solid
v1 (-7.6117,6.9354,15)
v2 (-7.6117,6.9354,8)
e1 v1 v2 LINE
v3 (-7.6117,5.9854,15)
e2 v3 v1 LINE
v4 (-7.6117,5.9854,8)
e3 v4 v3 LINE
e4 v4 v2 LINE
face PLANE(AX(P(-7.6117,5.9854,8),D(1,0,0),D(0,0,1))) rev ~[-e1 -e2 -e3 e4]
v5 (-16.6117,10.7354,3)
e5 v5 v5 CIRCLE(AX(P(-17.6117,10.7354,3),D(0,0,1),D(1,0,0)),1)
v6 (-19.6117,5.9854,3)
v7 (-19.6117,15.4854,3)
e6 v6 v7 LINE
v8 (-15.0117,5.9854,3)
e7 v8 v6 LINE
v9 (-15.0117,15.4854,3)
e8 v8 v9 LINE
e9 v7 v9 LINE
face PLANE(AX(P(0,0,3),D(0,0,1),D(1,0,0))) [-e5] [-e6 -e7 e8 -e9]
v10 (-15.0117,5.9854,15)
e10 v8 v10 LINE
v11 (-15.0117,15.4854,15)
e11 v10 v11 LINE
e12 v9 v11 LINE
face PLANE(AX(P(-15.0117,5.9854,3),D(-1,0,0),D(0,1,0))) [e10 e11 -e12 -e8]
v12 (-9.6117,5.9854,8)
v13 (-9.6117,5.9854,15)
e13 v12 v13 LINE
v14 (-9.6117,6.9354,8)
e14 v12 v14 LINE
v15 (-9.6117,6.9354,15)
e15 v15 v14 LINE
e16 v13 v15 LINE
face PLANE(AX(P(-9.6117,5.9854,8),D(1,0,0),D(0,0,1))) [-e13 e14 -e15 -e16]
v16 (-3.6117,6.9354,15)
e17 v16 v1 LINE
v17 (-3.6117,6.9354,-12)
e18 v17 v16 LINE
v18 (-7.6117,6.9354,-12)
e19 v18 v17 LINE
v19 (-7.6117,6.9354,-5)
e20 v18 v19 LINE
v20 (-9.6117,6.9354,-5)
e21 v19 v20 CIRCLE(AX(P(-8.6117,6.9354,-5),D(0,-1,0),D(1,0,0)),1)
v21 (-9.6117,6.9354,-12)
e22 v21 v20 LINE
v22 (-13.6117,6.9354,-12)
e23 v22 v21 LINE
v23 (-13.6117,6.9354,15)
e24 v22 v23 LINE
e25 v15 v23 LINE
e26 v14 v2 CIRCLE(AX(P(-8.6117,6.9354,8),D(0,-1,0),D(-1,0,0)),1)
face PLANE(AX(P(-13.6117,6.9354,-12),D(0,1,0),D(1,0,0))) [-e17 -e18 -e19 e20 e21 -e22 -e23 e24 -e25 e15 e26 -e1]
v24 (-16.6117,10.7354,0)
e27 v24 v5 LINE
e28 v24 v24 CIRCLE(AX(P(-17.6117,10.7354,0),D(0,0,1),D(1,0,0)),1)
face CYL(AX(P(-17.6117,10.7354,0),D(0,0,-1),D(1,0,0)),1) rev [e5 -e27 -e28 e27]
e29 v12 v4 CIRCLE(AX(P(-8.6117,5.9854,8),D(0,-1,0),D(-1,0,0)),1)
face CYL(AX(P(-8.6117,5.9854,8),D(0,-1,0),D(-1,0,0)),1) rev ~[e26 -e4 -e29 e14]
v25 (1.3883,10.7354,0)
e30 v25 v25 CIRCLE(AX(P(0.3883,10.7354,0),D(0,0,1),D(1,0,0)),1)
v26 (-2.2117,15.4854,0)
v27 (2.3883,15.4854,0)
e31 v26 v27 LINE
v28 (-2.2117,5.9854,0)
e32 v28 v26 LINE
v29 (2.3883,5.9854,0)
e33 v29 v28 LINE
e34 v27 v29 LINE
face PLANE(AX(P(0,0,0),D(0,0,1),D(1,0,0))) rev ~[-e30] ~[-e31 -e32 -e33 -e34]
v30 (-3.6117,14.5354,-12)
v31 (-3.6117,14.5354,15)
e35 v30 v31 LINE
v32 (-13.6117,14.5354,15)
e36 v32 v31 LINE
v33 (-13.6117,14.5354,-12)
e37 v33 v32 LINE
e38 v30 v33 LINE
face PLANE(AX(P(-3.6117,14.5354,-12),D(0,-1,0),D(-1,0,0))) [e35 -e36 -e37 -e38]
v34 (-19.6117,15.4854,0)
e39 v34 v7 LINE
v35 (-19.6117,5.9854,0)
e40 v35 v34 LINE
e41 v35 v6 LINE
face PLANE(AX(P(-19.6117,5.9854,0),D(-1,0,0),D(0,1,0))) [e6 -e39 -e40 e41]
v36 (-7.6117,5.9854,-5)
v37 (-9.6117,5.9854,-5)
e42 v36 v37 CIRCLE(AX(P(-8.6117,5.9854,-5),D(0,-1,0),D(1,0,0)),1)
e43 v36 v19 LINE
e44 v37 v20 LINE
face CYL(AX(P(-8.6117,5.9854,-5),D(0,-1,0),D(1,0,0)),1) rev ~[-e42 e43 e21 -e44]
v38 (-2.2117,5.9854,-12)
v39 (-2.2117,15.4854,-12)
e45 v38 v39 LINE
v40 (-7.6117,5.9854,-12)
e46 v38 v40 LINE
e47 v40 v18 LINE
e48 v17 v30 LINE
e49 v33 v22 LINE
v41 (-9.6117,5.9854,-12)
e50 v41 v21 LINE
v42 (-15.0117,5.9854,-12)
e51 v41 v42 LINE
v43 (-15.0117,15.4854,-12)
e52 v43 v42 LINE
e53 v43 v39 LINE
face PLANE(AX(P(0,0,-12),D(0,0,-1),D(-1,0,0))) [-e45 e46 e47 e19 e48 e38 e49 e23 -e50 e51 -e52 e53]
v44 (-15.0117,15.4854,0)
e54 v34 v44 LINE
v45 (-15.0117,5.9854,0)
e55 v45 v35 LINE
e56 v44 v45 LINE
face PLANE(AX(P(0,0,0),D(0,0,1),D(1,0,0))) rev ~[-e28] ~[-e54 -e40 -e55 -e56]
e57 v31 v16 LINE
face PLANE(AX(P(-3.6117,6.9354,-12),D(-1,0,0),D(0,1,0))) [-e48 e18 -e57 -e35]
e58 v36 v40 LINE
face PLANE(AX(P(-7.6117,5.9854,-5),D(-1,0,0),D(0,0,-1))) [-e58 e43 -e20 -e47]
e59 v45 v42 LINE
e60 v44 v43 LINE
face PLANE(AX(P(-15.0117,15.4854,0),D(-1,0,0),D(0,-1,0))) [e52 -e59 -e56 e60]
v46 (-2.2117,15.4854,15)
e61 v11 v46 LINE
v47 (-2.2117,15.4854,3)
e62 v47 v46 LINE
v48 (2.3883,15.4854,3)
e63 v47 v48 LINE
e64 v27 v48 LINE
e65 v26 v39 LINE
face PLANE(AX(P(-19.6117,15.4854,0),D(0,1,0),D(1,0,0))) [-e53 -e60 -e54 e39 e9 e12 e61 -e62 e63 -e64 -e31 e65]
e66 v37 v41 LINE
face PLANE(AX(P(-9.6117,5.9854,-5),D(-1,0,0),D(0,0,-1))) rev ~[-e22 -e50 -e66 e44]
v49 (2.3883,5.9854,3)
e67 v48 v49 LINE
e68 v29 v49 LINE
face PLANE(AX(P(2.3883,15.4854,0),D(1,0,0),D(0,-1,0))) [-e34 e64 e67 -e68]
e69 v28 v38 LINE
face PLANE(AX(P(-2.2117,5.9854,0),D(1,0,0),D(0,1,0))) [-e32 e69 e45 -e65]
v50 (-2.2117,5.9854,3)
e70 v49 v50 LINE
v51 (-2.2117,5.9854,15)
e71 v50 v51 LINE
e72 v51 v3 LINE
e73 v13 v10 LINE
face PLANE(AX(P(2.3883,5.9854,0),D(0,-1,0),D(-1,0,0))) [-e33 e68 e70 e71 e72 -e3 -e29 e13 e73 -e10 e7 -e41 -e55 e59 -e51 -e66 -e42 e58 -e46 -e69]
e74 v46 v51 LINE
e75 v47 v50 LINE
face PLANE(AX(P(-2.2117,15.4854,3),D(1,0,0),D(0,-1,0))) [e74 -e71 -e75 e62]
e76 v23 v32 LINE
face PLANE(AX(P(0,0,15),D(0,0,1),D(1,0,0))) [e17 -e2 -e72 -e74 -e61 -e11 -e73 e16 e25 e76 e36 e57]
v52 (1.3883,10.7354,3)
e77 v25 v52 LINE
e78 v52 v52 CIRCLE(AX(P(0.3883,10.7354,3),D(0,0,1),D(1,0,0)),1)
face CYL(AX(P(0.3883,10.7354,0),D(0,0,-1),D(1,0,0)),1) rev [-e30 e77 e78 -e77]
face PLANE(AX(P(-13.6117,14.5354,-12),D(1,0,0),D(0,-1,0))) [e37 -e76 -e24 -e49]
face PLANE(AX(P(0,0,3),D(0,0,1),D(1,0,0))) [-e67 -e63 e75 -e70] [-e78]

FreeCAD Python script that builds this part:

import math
import FreeCAD as App
import Part
import Sketcher

doc = App.newDocument("Part")
body = doc.addObject("PartDesign::Body", "Body")

sketch1 = body.newObject("Sketcher::SketchObject", "Sketch")
sketch1.AttachmentSupport = (doc.getObject("XY_Plane"), [""])
sketch1.MapMode = "FlatFace"
sketch1.addGeometry([
    Part.LineSegment(App.Vector(2.4, 15.5, 0), App.Vector(-19.6, 15.5, 0)),
    Part.LineSegment(App.Vector(-19.6, 15.5, 0), App.Vector(-19.6, 6, 0)),
    Part.LineSegment(App.Vector(-19.6, 6, 0), App.Vector(2.4, 6, 0)),
    Part.LineSegment(App.Vector(2.4, 6, 0), App.Vector(2.4, 15.5, 0)),
    Part.Circle(App.Vector(-17.6, 10.7, 0), App.Vector(0, 0, 1), 1),
    Part.Circle(App.Vector(0.4, 10.7, 0), App.Vector(0, 0, 1), 1),
], False)
sketch1.addConstraint([
    Sketcher.Constraint("Coincident", 0, 2, 1, 1),
    Sketcher.Constraint("Coincident", 1, 2, 2, 1),
    Sketcher.Constraint("Coincident", 2, 2, 3, 1),
    Sketcher.Constraint("Coincident", 3, 2, 0, 1),
    Sketcher.Constraint("Horizontal", 0),
    Sketcher.Constraint("Vertical", 1),
    Sketcher.Constraint("Horizontal", 2),
    Sketcher.Constraint("Vertical", 3),
    Sketcher.Constraint("Equal", 4, 5),
    Sketcher.Constraint("Horizontal", 4, 3, 5, 3),
    Sketcher.Constraint("Diameter", 4, 2.0),
    Sketcher.Constraint("DistanceX", 0, 2, 0, 1, 22.0),
    Sketcher.Constraint("DistanceY", 1, 2, 1, 1, 9.5),
    Sketcher.Constraint("DistanceX", 4, 3, 5, 3, 18.0),
    Sketcher.Constraint("DistanceX", 0, 2, 4, 3, 2.0),
    Sketcher.Constraint("DistanceY", 4, 3, 0, 2, 4.75),
    Sketcher.Constraint("DistanceX", 4, 3, -1, 1, 17.6117),
    Sketcher.Constraint("DistanceY", -1, 1, 4, 3, 10.7354),
])
pad1 = body.newObject("PartDesign::Pad", "Pad")
pad1.Profile = sketch1
pad1.Length = 3

sketch2 = body.newObject("Sketcher::SketchObject", "Sketch001")
sketch2.AttachmentSupport = (doc.getObject("XY_Plane"), [""])
sketch2.MapMode = "FlatFace"
sketch2.AttachmentOffset = App.Placement(App.Vector(0, 0, 3), App.Rotation())
sketch2.addGeometry([
    Part.LineSegment(App.Vector(-2, 15, 0), App.Vector(-15, 15, 0)),
    Part.LineSegment(App.Vector(-15, 15, 0), App.Vector(-15, 6, 0)),
    Part.LineSegment(App.Vector(-15, 6, 0), App.Vector(-2, 6, 0)),
    Part.LineSegment(App.Vector(-2, 6, 0), App.Vector(-2, 15, 0)),
], False)
sketch2.addConstraint([
    Sketcher.Constraint("Coincident", 0, 2, 1, 1),
    Sketcher.Constraint("Coincident", 1, 2, 2, 1),
    Sketcher.Constraint("Coincident", 2, 2, 3, 1),
    Sketcher.Constraint("Coincident", 3, 2, 0, 1),
    Sketcher.Constraint("Horizontal", 0),
    Sketcher.Constraint("Vertical", 1),
    Sketcher.Constraint("Horizontal", 2),
    Sketcher.Constraint("Vertical", 3),
    Sketcher.Constraint("DistanceX", 0, 2, 0, 1, 12.8),
    Sketcher.Constraint("DistanceY", 1, 2, 1, 1, 9.5),
    Sketcher.Constraint("DistanceX", 0, 2, -1, 1, 15.0117),
    Sketcher.Constraint("DistanceY", -1, 1, 0, 2, 15.4854),
])
pad2 = body.newObject("PartDesign::Pad", "Pad001")
pad2.Profile = sketch2
pad2.Length = 12

sketch3 = body.newObject("Sketcher::SketchObject", "Sketch002")
sketch3.AttachmentSupport = (doc.getObject("XY_Plane"), [""])
sketch3.MapMode = "FlatFace"
sketch3.addGeometry([
    Part.LineSegment(App.Vector(-15, 6, 0), App.Vector(-15, 15, 0)),
    Part.LineSegment(App.Vector(-15, 15, 0), App.Vector(-2, 15, 0)),
    Part.LineSegment(App.Vector(-2, 15, 0), App.Vector(-2, 6, 0)),
    Part.LineSegment(App.Vector(-2, 6, 0), App.Vector(-15, 6, 0)),
], False)
sketch3.addConstraint([
    Sketcher.Constraint("Coincident", 0, 2, 1, 1),
    Sketcher.Constraint("Coincident", 1, 2, 2, 1),
    Sketcher.Constraint("Coincident", 2, 2, 3, 1),
    Sketcher.Constraint("Coincident", 3, 2, 0, 1),
    Sketcher.Constraint("Vertical", 0),
    Sketcher.Constraint("Horizontal", 1),
    Sketcher.Constraint("Vertical", 2),
    Sketcher.Constraint("Horizontal", 3),
    Sketcher.Constraint("DistanceX", 1, 1, 1, 2, 12.8),
    Sketcher.Constraint("DistanceY", 0, 1, 0, 2, 9.5),
    Sketcher.Constraint("DistanceX", 0, 2, -1, 1, 15.0117),
    Sketcher.Constraint("DistanceY", -1, 1, 0, 2, 15.4854),
])
pad3 = body.newObject("PartDesign::Pad", "Pad002")
pad3.Profile = sketch3
pad3.Length = 12
pad3.Reversed = True

sketch4 = body.newObject("Sketcher::SketchObject", "Sketch003")
sketch4.AttachmentSupport = (doc.getObject("XY_Plane"), [""])
sketch4.MapMode = "FlatFace"
sketch4.AttachmentOffset = App.Placement(App.Vector(0, 0, -12), App.Rotation())
sketch4.addGeometry([
    Part.LineSegment(App.Vector(-4, 7, 0), App.Vector(-14, 7, 0)),
    Part.LineSegment(App.Vector(-14, 7, 0), App.Vector(-14, 15, 0)),
    Part.LineSegment(App.Vector(-14, 15, 0), App.Vector(-4, 15, 0)),
    Part.LineSegment(App.Vector(-4, 15, 0), App.Vector(-4, 7, 0)),
], False)
sketch4.addConstraint([
    Sketcher.Constraint("Coincident", 0, 2, 1, 1),
    Sketcher.Constraint("Coincident", 1, 2, 2, 1),
    Sketcher.Constraint("Coincident", 2, 2, 3, 1),
    Sketcher.Constraint("Coincident", 3, 2, 0, 1),
    Sketcher.Constraint("Horizontal", 0),
    Sketcher.Constraint("Vertical", 1),
    Sketcher.Constraint("Horizontal", 2),
    Sketcher.Constraint("Vertical", 3),
    Sketcher.Constraint("DistanceX", 0, 2, 0, 1, 10.0),
    Sketcher.Constraint("DistanceY", 1, 1, 1, 2, 7.6),
    Sketcher.Constraint("DistanceX", 0, 2, -1, 1, 13.6117),
    Sketcher.Constraint("DistanceY", -1, 1, 0, 2, 6.9354),
])
pocket1 = body.newObject("PartDesign::Pocket", "Pocket")
pocket1.Profile = sketch4
pocket1.Length = 30
pocket1.Reversed = True

sketch5 = body.newObject("Sketcher::SketchObject", "Sketch004")
sketch5.AttachmentSupport = (doc.getObject("XZ_Plane"), [""])
sketch5.MapMode = "FlatFace"
sketch5.AttachmentOffset = App.Placement(App.Vector(0, 0, -5.9854), App.Rotation())
sketch5.addGeometry([
    Part.LineSegment(App.Vector(-7.6, 8, 0), App.Vector(-7.6, 15, 0)),
    Part.LineSegment(App.Vector(-7.6, 15, 0), App.Vector(-9.6, 15, 0)),
    Part.LineSegment(App.Vector(-9.6, 15, 0), App.Vector(-9.6, 8, 0)),
    Part.ArcOfCircle(Part.Circle(App.Vector(-8.6, 8, 0), App.Vector(0, 0, 1), 1), math.radians(180), math.radians(360)),
    Part.LineSegment(App.Vector(-9.6, -5, 0), App.Vector(-9.6, -12, 0)),
    Part.LineSegment(App.Vector(-9.6, -12, 0), App.Vector(-7.6, -12, 0)),
    Part.LineSegment(App.Vector(-7.6, -12, 0), App.Vector(-7.6, -5, 0)),
    Part.ArcOfCircle(Part.Circle(App.Vector(-8.6, -5, 0), App.Vector(0, 0, 1), 1), math.radians(0), math.radians(180)),
], False)
sketch5.addConstraint([
    Sketcher.Constraint("Coincident", 0, 2, 1, 1),
    Sketcher.Constraint("Coincident", 1, 2, 2, 1),
    Sketcher.Constraint("Tangent", 2, 2, 3, 1),
    Sketcher.Constraint("Tangent", 3, 2, 0, 1),
    Sketcher.Constraint("Coincident", 4, 2, 5, 1),
    Sketcher.Constraint("Coincident", 5, 2, 6, 1),
    Sketcher.Constraint("Tangent", 6, 2, 7, 1),
    Sketcher.Constraint("Tangent", 7, 2, 4, 1),
    Sketcher.Constraint("Vertical", 0),
    Sketcher.Constraint("Horizontal", 1),
    Sketcher.Constraint("Vertical", 2),
    Sketcher.Constraint("Vertical", 4),
    Sketcher.Constraint("Horizontal", 5),
    Sketcher.Constraint("Vertical", 6),
    Sketcher.Constraint("Equal", 3, 7),
    Sketcher.Constraint("Vertical", 3, 3, 7, 3),
    Sketcher.Constraint("Equal", 2, 4),
    Sketcher.Constraint("Radius", 3, 1.0),
    Sketcher.Constraint("DistanceY", 0, 1, 0, 2, 7.0),
    Sketcher.Constraint("DistanceY", -1, 1, 3, 3, 8.0),
    Sketcher.Constraint("DistanceY", 7, 3, -1, 1, 5.0),
    Sketcher.Constraint("DistanceX", 3, 3, -1, 1, 8.6117),
])
pocket2 = body.newObject("PartDesign::Pocket", "Pocket001")
pocket2.Profile = sketch5
pocket2.Length = 3

doc.recompute()
